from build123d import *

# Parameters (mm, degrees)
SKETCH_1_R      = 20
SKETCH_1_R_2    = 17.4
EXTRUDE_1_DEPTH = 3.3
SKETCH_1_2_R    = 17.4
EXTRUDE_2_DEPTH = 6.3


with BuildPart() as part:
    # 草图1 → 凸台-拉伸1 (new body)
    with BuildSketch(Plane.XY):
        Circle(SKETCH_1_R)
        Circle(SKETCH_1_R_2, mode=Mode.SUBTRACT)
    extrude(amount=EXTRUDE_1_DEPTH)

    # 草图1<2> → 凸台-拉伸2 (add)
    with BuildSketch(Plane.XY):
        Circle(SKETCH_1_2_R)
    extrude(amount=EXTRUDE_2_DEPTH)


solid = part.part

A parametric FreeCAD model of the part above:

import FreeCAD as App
import Part
import Sketcher
from FreeCAD import Vector

doc = App.newDocument("Part")
body = doc.addObject("PartDesign::Body", "Body")

# Sketch on XY plane
sketch1 = doc.addObject("Sketcher::SketchObject", "Sketch")
body.addObject(sketch1)
sketch1.AttachmentSupport = (doc.XY_Plane, [""])
sketch1.MapMode = "FlatFace"
sketch1.addGeometry(Part.Circle(Vector(0, 0, 0), Vector(0, 0, 1), 20), False)
sketch1.addGeometry(Part.Circle(Vector(0, 0, 0), Vector(0, 0, 1), 17), False)
sketch1.addConstraint(Sketcher.Constraint("Coincident", 0, 3, -1, 1))
sketch1.addConstraint(Sketcher.Constraint("Coincident", 1, 3, -1, 1))
sketch1.addConstraint(Sketcher.Constraint("Diameter", 0, 40.0))
sketch1.addConstraint(Sketcher.Constraint("Diameter", 1, 34.8))
pad1 = doc.addObject("PartDesign::Pad", "Pad")
body.addObject(pad1)
pad1.Profile = sketch1
pad1.Length = 3.3

# Sketch on XY plane
sketch2 = doc.addObject("Sketcher::SketchObject", "Sketch001")
body.addObject(sketch2)
sketch2.AttachmentSupport = (doc.XY_Plane, [""])
sketch2.MapMode = "FlatFace"
sketch2.addGeometry(Part.Circle(Vector(0, 0, 0), Vector(0, 0, 1), 17), False)
sketch2.addConstraint(Sketcher.Constraint("Coincident", 0, 3, -1, 1))
sketch2.addConstraint(Sketcher.Constraint("Diameter", 0, 34.8))
pad2 = doc.addObject("PartDesign::Pad", "Pad001")
body.addObject(pad2)
pad2.Profile = sketch2
pad2.Length = 6.3

doc.recompute()
